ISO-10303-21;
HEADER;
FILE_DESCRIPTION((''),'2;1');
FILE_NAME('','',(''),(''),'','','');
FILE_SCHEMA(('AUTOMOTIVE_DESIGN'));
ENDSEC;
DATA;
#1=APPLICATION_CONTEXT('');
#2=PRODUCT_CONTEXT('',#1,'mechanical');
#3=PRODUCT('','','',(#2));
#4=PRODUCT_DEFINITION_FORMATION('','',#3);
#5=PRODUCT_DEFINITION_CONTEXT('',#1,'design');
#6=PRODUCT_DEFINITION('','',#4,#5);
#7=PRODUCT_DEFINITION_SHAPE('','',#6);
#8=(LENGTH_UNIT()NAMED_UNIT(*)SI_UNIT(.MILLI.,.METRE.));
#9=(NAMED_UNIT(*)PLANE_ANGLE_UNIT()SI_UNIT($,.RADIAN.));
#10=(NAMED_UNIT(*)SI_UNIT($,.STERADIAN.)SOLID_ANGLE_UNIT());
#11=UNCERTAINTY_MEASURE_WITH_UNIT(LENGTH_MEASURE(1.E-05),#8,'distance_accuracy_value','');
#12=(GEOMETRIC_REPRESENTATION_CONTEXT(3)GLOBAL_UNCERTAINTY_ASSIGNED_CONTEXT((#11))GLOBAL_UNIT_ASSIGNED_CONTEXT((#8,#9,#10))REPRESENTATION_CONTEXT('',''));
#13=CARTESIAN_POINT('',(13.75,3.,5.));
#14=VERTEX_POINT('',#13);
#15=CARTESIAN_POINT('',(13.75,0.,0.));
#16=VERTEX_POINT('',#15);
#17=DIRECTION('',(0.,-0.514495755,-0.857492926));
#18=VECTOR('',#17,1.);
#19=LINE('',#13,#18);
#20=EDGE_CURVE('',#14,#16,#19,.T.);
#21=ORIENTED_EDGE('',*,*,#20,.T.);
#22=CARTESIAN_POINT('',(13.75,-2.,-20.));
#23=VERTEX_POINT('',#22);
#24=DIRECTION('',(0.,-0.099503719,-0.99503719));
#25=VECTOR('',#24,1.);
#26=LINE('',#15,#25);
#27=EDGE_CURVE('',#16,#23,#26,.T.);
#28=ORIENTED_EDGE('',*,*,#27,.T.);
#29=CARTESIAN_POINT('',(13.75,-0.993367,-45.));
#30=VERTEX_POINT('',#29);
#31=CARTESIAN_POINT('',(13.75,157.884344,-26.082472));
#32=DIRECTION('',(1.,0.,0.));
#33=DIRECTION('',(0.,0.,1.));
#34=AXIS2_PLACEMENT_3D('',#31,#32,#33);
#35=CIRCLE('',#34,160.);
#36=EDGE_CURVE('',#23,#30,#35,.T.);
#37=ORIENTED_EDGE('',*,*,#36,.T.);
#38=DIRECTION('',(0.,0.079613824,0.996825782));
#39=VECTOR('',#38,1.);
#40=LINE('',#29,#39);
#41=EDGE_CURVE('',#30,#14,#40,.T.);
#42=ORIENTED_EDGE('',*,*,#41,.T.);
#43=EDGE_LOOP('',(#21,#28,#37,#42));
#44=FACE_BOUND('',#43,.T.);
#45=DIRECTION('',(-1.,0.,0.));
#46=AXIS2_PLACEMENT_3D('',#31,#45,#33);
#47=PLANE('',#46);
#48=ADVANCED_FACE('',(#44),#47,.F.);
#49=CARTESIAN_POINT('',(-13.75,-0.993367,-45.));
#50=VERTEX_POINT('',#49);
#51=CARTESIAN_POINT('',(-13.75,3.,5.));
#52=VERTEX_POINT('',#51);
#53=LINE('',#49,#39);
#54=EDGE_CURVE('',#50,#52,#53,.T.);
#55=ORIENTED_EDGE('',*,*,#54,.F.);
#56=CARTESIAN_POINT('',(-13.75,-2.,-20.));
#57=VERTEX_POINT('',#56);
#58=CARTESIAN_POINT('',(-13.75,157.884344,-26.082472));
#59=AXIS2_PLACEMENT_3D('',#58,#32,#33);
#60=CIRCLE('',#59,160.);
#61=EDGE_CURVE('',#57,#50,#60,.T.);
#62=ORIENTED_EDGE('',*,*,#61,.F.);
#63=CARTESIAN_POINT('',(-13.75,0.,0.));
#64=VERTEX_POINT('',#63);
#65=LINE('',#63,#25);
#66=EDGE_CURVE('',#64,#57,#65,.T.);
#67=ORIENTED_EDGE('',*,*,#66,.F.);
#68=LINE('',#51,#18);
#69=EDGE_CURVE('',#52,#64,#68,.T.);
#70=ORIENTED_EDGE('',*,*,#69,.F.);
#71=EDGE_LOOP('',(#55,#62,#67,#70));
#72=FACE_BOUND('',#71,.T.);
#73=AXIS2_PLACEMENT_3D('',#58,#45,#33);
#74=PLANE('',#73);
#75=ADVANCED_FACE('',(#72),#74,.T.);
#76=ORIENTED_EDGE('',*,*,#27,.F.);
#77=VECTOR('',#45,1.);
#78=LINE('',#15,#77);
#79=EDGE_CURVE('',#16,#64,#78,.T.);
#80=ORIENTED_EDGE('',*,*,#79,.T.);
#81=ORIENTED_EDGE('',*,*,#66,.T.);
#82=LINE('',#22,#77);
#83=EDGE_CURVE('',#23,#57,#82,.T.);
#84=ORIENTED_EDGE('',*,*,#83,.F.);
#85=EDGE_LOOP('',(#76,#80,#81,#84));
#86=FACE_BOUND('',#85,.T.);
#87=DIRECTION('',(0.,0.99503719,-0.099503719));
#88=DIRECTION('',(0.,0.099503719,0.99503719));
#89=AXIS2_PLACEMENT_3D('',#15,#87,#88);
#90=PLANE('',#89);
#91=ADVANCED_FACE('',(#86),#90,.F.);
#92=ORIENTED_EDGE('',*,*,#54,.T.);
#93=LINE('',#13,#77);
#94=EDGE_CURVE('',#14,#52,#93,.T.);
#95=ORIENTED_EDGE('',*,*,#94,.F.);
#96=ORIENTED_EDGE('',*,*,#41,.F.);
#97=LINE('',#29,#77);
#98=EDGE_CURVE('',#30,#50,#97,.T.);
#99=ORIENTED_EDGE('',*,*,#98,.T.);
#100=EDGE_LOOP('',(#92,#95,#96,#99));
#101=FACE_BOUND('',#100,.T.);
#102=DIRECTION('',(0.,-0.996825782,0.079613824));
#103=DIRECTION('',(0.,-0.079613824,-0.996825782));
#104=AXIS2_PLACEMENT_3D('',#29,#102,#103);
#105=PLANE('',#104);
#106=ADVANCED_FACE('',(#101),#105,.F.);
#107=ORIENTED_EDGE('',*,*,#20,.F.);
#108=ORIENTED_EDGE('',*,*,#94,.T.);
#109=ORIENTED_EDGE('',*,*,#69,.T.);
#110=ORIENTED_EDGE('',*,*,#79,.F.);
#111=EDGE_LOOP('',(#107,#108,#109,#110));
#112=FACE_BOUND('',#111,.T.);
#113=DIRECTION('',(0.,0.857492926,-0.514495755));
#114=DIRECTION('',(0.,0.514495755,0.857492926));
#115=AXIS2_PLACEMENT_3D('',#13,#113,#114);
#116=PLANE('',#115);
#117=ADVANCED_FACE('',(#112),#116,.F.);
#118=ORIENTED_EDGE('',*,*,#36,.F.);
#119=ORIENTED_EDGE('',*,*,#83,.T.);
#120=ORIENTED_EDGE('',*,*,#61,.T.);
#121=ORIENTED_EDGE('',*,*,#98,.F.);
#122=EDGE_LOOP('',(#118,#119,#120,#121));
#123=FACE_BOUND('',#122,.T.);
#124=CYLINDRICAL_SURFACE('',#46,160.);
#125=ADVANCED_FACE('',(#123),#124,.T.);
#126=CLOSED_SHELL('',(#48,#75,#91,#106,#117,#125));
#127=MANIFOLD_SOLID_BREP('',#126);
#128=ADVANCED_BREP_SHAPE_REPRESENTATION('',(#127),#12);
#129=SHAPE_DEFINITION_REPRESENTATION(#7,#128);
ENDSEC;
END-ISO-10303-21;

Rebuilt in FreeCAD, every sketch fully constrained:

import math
import FreeCAD as App
import Part
import Sketcher

doc = App.newDocument("Part")
params = doc.addObject("Spreadsheet::Sheet", "Params")
for row, (alias, value) in enumerate([
    ("sketch1_radius", "160 mm"),
    ("pad1_length", "27.5 mm"),
], start=1):
    params.set(f"A{row}", alias)
    params.set(f"B{row}", "=" + value)
    params.setAlias(f"B{row}", alias)

body = doc.addObject("PartDesign::Body", "Body")

# Sketch on YZ plane
sketch1 = body.newObject("Sketcher::SketchObject", "Sketch")
sketch1.AttachmentSupport = (doc.getObject("YZ_Plane"), [""])
sketch1.MapMode = "FlatFace"
sketch1.addGeometry(Part.LineSegment(App.Vector(0, 0, 0), App.Vector(-2, -20, 0)), False)
sketch1.addGeometry(Part.ArcOfCircle(Part.Circle(App.Vector(158, -26, 0), App.Vector(0, 0, 1), 160), math.radians(177.82), math.radians(186.79)), False)
sketch1.addGeometry(Part.LineSegment(App.Vector(-1, -45, 0), App.Vector(3, 5, 0)), False)
sketch1.addGeometry(Part.LineSegment(App.Vector(3, 5, 0), App.Vector(0, 0, 0)), False)
sketch1.addConstraint(Sketcher.Constraint("Coincident", 0, 2, 1, 1))
sketch1.addConstraint(Sketcher.Constraint("Coincident", 1, 2, 2, 1))
sketch1.addConstraint(Sketcher.Constraint("Coincident", 2, 2, 3, 1))
sketch1.addConstraint(Sketcher.Constraint("Coincident", 3, 2, 0, 1))
sketch1.addConstraint(Sketcher.Constraint("Coincident", 3, 2, -1, 1))
sketch1.addConstraint(Sketcher.Constraint("Radius", 1, 160.0))
sketch1.addConstraint(Sketcher.Constraint("DistanceX", 0, 2, -1, 1, 2.0))
sketch1.addConstraint(Sketcher.Constraint("DistanceY", 0, 2, -1, 1, 20.0))
sketch1.addConstraint(Sketcher.Constraint("DistanceY", 1, 2, -1, 1, 45.0))
sketch1.addConstraint(Sketcher.Constraint("DistanceX", -1, 1, 2, 2, 3.0))
sketch1.addConstraint(Sketcher.Constraint("DistanceY", -1, 1, 2, 2, 5.0))
sketch1.addConstraint(Sketcher.Constraint("DistanceY", 1, 3, -1, 1, 26.082472))
sketch1.setExpression("Constraints[5]", "Params.sketch1_radius")
pad1 = body.newObject("PartDesign::Pad", "Pad")
pad1.Profile = sketch1
pad1.setExpression("Length", "Params.pad1_length")
pad1.Midplane = True

doc.recompute()
